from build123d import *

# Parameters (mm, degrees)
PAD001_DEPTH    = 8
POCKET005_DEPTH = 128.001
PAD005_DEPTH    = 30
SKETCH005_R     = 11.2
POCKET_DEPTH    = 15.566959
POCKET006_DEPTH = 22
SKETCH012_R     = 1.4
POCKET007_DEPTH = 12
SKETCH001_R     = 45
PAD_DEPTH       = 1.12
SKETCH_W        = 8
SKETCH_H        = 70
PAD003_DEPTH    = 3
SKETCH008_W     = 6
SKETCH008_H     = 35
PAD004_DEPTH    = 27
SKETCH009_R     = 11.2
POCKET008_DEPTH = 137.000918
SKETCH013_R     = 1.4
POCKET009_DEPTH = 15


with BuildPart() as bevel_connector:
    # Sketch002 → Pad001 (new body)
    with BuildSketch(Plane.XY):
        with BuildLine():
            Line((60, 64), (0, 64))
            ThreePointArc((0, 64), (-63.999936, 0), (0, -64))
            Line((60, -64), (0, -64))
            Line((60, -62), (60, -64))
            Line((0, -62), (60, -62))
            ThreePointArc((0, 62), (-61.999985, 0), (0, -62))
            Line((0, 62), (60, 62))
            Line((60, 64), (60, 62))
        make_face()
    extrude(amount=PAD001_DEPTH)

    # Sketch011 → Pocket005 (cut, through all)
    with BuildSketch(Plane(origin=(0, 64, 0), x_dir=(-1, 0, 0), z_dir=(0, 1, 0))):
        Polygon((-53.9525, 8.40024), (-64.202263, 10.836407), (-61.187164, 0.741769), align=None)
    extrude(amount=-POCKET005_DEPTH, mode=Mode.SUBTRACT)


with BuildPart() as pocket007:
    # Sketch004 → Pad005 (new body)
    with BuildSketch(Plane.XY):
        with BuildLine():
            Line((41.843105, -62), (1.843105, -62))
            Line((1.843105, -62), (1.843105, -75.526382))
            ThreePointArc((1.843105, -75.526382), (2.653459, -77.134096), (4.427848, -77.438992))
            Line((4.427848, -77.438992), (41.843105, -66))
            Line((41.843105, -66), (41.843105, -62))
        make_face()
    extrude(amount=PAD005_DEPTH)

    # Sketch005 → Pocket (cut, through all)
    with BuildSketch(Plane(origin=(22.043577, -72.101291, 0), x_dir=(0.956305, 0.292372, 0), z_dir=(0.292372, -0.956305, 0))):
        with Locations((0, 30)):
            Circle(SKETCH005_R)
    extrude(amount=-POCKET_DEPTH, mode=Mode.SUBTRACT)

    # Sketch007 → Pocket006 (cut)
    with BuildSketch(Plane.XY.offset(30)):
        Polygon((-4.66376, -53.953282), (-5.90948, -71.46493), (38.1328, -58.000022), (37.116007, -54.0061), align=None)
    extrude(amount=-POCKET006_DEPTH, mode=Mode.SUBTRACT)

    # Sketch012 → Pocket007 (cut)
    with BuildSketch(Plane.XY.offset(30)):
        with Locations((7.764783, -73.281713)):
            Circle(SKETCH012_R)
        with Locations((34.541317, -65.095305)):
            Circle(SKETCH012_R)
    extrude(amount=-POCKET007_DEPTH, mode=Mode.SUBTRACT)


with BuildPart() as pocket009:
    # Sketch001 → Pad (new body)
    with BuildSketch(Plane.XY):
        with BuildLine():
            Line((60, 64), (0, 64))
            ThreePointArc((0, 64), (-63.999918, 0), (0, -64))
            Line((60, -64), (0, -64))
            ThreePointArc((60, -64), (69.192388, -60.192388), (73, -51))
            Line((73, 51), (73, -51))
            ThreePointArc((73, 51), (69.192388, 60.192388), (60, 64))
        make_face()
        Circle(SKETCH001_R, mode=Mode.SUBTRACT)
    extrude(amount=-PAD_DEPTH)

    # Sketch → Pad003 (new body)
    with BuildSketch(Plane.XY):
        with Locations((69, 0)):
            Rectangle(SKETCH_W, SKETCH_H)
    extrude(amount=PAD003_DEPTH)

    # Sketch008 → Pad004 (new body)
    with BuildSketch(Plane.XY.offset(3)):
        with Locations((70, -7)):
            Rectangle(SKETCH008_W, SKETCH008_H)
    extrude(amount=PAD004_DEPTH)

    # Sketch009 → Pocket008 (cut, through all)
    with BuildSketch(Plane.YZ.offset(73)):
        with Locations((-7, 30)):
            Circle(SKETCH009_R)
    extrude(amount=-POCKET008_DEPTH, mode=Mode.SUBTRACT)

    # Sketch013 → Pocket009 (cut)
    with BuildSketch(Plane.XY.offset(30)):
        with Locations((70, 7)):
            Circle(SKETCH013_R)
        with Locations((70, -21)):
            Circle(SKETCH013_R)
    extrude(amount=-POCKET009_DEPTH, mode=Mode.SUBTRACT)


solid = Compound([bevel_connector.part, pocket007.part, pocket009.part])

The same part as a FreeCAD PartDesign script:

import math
import FreeCAD as App
import Part
import Sketcher
from FreeCAD import Vector
Q = App.Units.Quantity

doc = App.newDocument("Part")
body = doc.addObject("PartDesign::Body", "Body")

# Sketch on XY plane
sketch1 = body.newObject("Sketcher::SketchObject", "Sketch")
sketch1.AttachmentSupport = (doc.getObject("XY_Plane"), [""])
sketch1.MapMode = "FlatFace"
sketch1.addGeometry([
    Part.LineSegment(Vector(60, 64, 0), Vector(0, 64, 0)),  # 0
    Part.ArcOfCircle(Part.Circle(Vector(0.000064, 0, 0), Vector(0, 0, 1), 64), math.radians(90.000057), math.radians(269.999943)),  # 1
    Part.LineSegment(Vector(0, -64, 0), Vector(60, -64, 0)),  # 2
    Part.LineSegment(Vector(60, -64, 0), Vector(60, -62, 0)),  # 3
    Part.LineSegment(Vector(60, -62, 0), Vector(0, -62, 0)),  # 4
    Part.ArcOfCircle(Part.Circle(Vector(0.000015, 0, 0), Vector(0, 0, 1), 62), math.radians(90.000014), math.radians(269.999986)),  # 5
    Part.LineSegment(Vector(0, 62, 0), Vector(60, 62, 0)),  # 6
    Part.LineSegment(Vector(60, 62, 0), Vector(60, 64, 0)),  # 7
], False)
sketch1.addConstraint([
    Sketcher.Constraint("Coincident", 0, 2, 1, 1),
    Sketcher.Constraint("Coincident", 1, 2, 2, 1),
    Sketcher.Constraint("Coincident", 2, 2, 3, 1),
    Sketcher.Constraint("Coincident", 3, 2, 4, 1),
    Sketcher.Constraint("Coincident", 4, 2, 5, 2),
    Sketcher.Constraint("Coincident", 5, 1, 6, 1),
    Sketcher.Constraint("Coincident", 6, 2, 7, 1),
    Sketcher.Constraint("Coincident", 7, 2, 0, 1),
    Sketcher.Constraint("Horizontal", 0),
    Sketcher.Constraint("Horizontal", 2),
    Sketcher.Constraint("Vertical", 3),
    Sketcher.Constraint("Horizontal", 4),
    Sketcher.Constraint("Horizontal", 6),
    Sketcher.Constraint("Vertical", 7),
    Sketcher.Constraint("PointOnObject", 1, 3, -1),
    Sketcher.Constraint("PointOnObject", 5, 3, -1),
    Sketcher.Constraint("PointOnObject", 0, 2, -2),
    Sketcher.Constraint("PointOnObject", 1, 2, -2),
    Sketcher.Constraint("PointOnObject", 4, 2, -2),
    Sketcher.Constraint("PointOnObject", 5, 1, -2),
    Sketcher.Constraint("Radius", 1, 64.0),
    Sketcher.Constraint("Radius", 5, 62.0),
    Sketcher.Constraint("DistanceX", 0, 2, 0, 1, 60.0),
    Sketcher.Constraint("DistanceX", 2, 1, 2, 2, 60.0),
    Sketcher.Constraint("DistanceX", 1, 3, 2, 2, 59.999936),
    Sketcher.Constraint("DistanceX", 5, 3, 2, 2, 59.999985),
])
pad1 = body.newObject("PartDesign::Pad", "Pad")
pad1.Profile = sketch1
pad1.Length = 8

# Sketch on XZ plane
sketch2 = body.newObject("Sketcher::SketchObject", "Sketch001")
sketch2.AttachmentSupport = (doc.getObject("XZ_Plane"), [""])
sketch2.MapMode = "FlatFace"
sketch2.AttachmentOffset = App.Placement(Vector(0, 0, -64), App.Rotation())
sketch2.addGeometry([
    Part.LineSegment(Vector(54, 8, 0), Vector(64, 11, 0)),
    Part.LineSegment(Vector(64, 11, 0), Vector(61, 1, 0)),
    Part.LineSegment(Vector(61, 1, 0), Vector(54, 8, 0)),
], False)
sketch2.addConstraint([
    Sketcher.Constraint("Coincident", 0, 2, 1, 1),
    Sketcher.Constraint("Coincident", 1, 2, 2, 1),
    Sketcher.Constraint("Coincident", 2, 2, 0, 1),
    Sketcher.Constraint("Equal", 0, 1),
    Sketcher.Constraint("Equal", 1, 2),
    Sketcher.Constraint("Angle", 0, Q("13.369998 deg")),
    Sketcher.Constraint("Distance", 0, 10.5353),
    Sketcher.Constraint("DistanceX", -1, 1, 2, 2, 53.9525),
    Sketcher.Constraint("DistanceY", -1, 1, 1, 2, 0.741769),
])
pocket1 = body.newObject("PartDesign::Pocket", "Pocket")
pocket1.Profile = sketch2
pocket1.Type = "ThroughAll"
pocket1.Reversed = True
body2 = doc.addObject("PartDesign::Body", "Body001")

# Sketch on XY plane
sketch3 = body2.newObject("Sketcher::SketchObject", "Sketch002")
sketch3.AttachmentSupport = (doc.getObject("XY_Plane001"), [""])
sketch3.MapMode = "FlatFace"
sketch3.addGeometry([
    Part.LineSegment(Vector(41.8, -62, 0), Vector(1.8, -62, 0)),  # 0
    Part.LineSegment(Vector(1.8, -62, 0), Vector(1.8, -75.5, 0)),  # 1
    Part.ArcOfCircle(Part.Circle(Vector(3.8, -75.5, 0), Vector(0, 0, 1), 2), math.radians(180), math.radians(287)),  # 2
    Part.LineSegment(Vector(4.4, -77.4, 0), Vector(41.8, -66, 0)),  # 3
    Part.LineSegment(Vector(41.8, -66, 0), Vector(41.8, -62, 0)),  # 4
], False)
sketch3.addConstraint([
    Sketcher.Constraint("Coincident", 0, 2, 1, 1),
    Sketcher.Constraint("Tangent", 1, 2, 2, 1),
    Sketcher.Constraint("Tangent", 2, 2, 3, 1),
    Sketcher.Constraint("Coincident", 3, 2, 4, 1),
    Sketcher.Constraint("Coincident", 4, 2, 0, 1),
    Sketcher.Constraint("Horizontal", 0),
    Sketcher.Constraint("Vertical", 1),
    Sketcher.Constraint("Vertical", 4),
    Sketcher.Constraint("Radius", 2, 2.0),
    Sketcher.Constraint("DistanceX", 0, 2, 0, 1, 40.0),
    Sketcher.Constraint("DistanceY", 4, 1, 4, 2, 4.0),
    Sketcher.Constraint("Angle", 3, Q("17 deg")),
    Sketcher.Constraint("DistanceY", 0, 2, -1, 1, 62.0),
    Sketcher.Constraint("DistanceX", -1, 1, 2, 2, 4.427848),
])
pad2 = body2.newObject("PartDesign::Pad", "Pad001")
pad2.Profile = sketch3
pad2.Length = 30

# Sketch on an angled plane
sketch4 = body2.newObject("Sketcher::SketchObject", "Sketch003")
sketch4.Placement = App.Placement(Vector(22.043577, -72.101291, 0), App.Rotation(Vector(0.956304694, 0.292371907, 0), Vector(0, 0, 1), Vector(0.292371907, -0.956304694, 0), "ZXY"))
sketch4.addGeometry(Part.Circle(Vector(0, 30, 0), Vector(0, 0, 1), 11), False)
sketch4.addConstraint([
    Sketcher.Constraint("PointOnObject", 0, 3, -2),
    Sketcher.Constraint("Diameter", 0, 22.4),
    Sketcher.Constraint("DistanceY", -1, 1, 0, 3, 30.0),
])
pocket2 = body2.newObject("PartDesign::Pocket", "Pocket001")
pocket2.Profile = sketch4
pocket2.Type = "ThroughAll"

# Sketch on XY plane
sketch5 = body2.newObject("Sketcher::SketchObject", "Sketch004")
sketch5.AttachmentSupport = (doc.getObject("XY_Plane001"), [""])
sketch5.MapMode = "FlatFace"
sketch5.AttachmentOffset = App.Placement(Vector(0, 0, 30), App.Rotation())
sketch5.addGeometry([
    Part.LineSegment(Vector(-4.7, -54, 0), Vector(-5.9, -71.5, 0)),
    Part.LineSegment(Vector(-5.9, -71.5, 0), Vector(38.1, -58, 0)),
    Part.LineSegment(Vector(38.1, -58, 0), Vector(37.1, -54, 0)),
    Part.LineSegment(Vector(37.1, -54, 0), Vector(-4.7, -54, 0)),
], False)
sketch5.addConstraint([
    Sketcher.Constraint("Coincident", 0, 2, 1, 1),
    Sketcher.Constraint("Coincident", 1, 2, 2, 1),
    Sketcher.Constraint("Coincident", 2, 2, 3, 1),
    Sketcher.Constraint("Coincident", 3, 2, 0, 1),
    Sketcher.Constraint("Distance", 0, 17.5559),
    Sketcher.Constraint("Distance", 1, 46.0546),
    Sketcher.Constraint("Distance", 3, 41.7798),
    Sketcher.Constraint("DistanceX", -1, 1, 1, 2, 38.1328),
    Sketcher.Constraint("DistanceY", 2, 2, -1, 1, 54.0061),
    Sketcher.Constraint("Distance", 2, 4.12132),
    Sketcher.Constraint("DistanceX", 0, 2, -1, 1, 5.90948),
    Sketcher.Constraint("DistanceY", 0, 2, -1, 1, 71.46493),
])
pocket3 = body2.newObject("PartDesign::Pocket", "Pocket002")
pocket3.Profile = sketch5
pocket3.Length = 22

# Sketch on XY plane
sketch6 = body2.newObject("Sketcher::SketchObject", "Sketch005")
sketch6.AttachmentSupport = (doc.getObject("XY_Plane001"), [""])
sketch6.MapMode = "FlatFace"
sketch6.AttachmentOffset = App.Placement(Vector(0, 0, 30), App.Rotation())
sketch6.addGeometry([
    Part.Circle(Vector(7.8, -73.3, 0), Vector(0, 0, 1), 1.4),
    Part.Circle(Vector(34.5, -65.1, 0), Vector(0, 0, 1), 1.4),
], False)
sketch6.addConstraint([
    Sketcher.Constraint("Equal", 0, 1),
    Sketcher.Constraint("Diameter", 0, 2.8),
    Sketcher.Constraint("DistanceX", -1, 1, 0, 3, 7.764783),
    Sketcher.Constraint("DistanceY", 0, 3, -1, 1, 73.281713),
    Sketcher.Constraint("DistanceX", -1, 1, 1, 3, 34.541317),
    Sketcher.Constraint("DistanceY", 1, 3, -1, 1, 65.095305),
])
pocket4 = body2.newObject("PartDesign::Pocket", "Pocket003")
pocket4.Profile = sketch6
pocket4.Length = 12
body3 = doc.addObject("PartDesign::Body", "Body002")

# Sketch on XY plane
sketch7 = body3.newObject("Sketcher::SketchObject", "Sketch006")
sketch7.AttachmentSupport = (doc.getObject("XY_Plane002"), [""])
sketch7.MapMode = "FlatFace"
sketch7.addGeometry([
    Part.LineSegment(Vector(60, 64, 0), Vector(0, 64, 0)),  # 0
    Part.ArcOfCircle(Part.Circle(Vector(0.000082, 0, 0), Vector(0, 0, 1), 64), math.radians(90.000073), math.radians(269.999927)),  # 1
    Part.LineSegment(Vector(0, -64, 0), Vector(60, -64, 0)),  # 2
    Part.ArcOfCircle(Part.Circle(Vector(59.999999, -50.999999, 0), Vector(0, 0, 1), 13.000001), math.radians(-89.999998), math.radians(-0.000002)),  # 3
    Part.LineSegment(Vector(73, -51, 0), Vector(73, 51, 0)),  # 4
    Part.ArcOfCircle(Part.Circle(Vector(59.999999, 50.999999, 0), Vector(0, 0, 1), 13.000001), math.radians(0.000002), math.radians(89.999998)),  # 5
    Part.Circle(Vector(0, 0, 0), Vector(0, 0, 1), 45),  # 6
], False)
sketch7.addConstraint([
    Sketcher.Constraint("Coincident", 0, 2, 1, 1),
    Sketcher.Constraint("Coincident", 1, 2, 2, 1),
    Sketcher.Constraint("Coincident", 2, 2, 3, 1),
    Sketcher.Constraint("Coincident", 3, 2, 4, 1),
    Sketcher.Constraint("Coincident", 4, 2, 5, 1),
    Sketcher.Constraint("Coincident", 5, 2, 0, 1),
    Sketcher.Constraint("Horizontal", 0),
    Sketcher.Constraint("Horizontal", 2),
    Sketcher.Constraint("Vertical", 4),
    Sketcher.Constraint("Coincident", 6, 3, -1, 1),
    Sketcher.Constraint("PointOnObject", 1, 3, -1),
    Sketcher.Constraint("PointOnObject", 0, 2, -2),
    Sketcher.Constraint("PointOnObject", 1, 2, -2),
    Sketcher.Constraint("Diameter", 6, 90.0),
    Sketcher.Constraint("Radius", 1, 64.0),
    Sketcher.Constraint("Radius", 3, 13.000001),
    Sketcher.Constraint("Radius", 5, 13.000001),
    Sketcher.Constraint("DistanceX", 0, 2, 0, 1, 60.0),
    Sketcher.Constraint("DistanceX", 2, 1, 2, 2, 60.0),
    Sketcher.Constraint("DistanceY", 4, 1, 4, 2, 102.0),
    Sketcher.Constraint("DistanceX", -1, 1, 3, 3, 59.999999),
    Sketcher.Constraint("DistanceY", 3, 2, -1, 1, 51.0),
    Sketcher.Constraint("DistanceX", 1, 3, 3, 3, 59.999917),
])
pad3 = body3.newObject("PartDesign::Pad", "Pad002")
pad3.Profile = sketch7
pad3.Length = 1.12
pad3.Reversed = True

# Sketch on XY plane
sketch8 = body3.newObject("Sketcher::SketchObject", "Sketch007")
sketch8.AttachmentSupport = (doc.getObject("XY_Plane002"), [""])
sketch8.MapMode = "FlatFace"
sketch8.addGeometry([
    Part.LineSegment(Vector(65, 35, 0), Vector(65, -35, 0)),
    Part.LineSegment(Vector(65, -35, 0), Vector(73, -35, 0)),
    Part.LineSegment(Vector(73, -35, 0), Vector(73, 35, 0)),
    Part.LineSegment(Vector(73, 35, 0), Vector(65, 35, 0)),
], False)
sketch8.addConstraint([
    Sketcher.Constraint("Coincident", 0, 2, 1, 1),
    Sketcher.Constraint("Coincident", 1, 2, 2, 1),
    Sketcher.Constraint("Coincident", 2, 2, 3, 1),
    Sketcher.Constraint("Coincident", 3, 2, 0, 1),
    Sketcher.Constraint("Vertical", 0),
    Sketcher.Constraint("Horizontal", 1),
    Sketcher.Constraint("Vertical", 2),
    Sketcher.Constraint("Horizontal", 3),
    Sketcher.Constraint("DistanceX", 1, 1, 1, 2, 8.0),
    Sketcher.Constraint("DistanceY", 0, 2, 0, 1, 70.0),
    Sketcher.Constraint("DistanceX", -1, 1, 0, 2, 65.0),
    Sketcher.Constraint("DistanceY", 0, 2, -1, 1, 35.0),
])
pad4 = body3.newObject("PartDesign::Pad", "Pad003")
pad4.Profile = sketch8
pad4.Length = 3

# Sketch on XY plane
sketch9 = body3.newObject("Sketcher::SketchObject", "Sketch008")
sketch9.AttachmentSupport = (doc.getObject("XY_Plane002"), [""])
sketch9.MapMode = "FlatFace"
sketch9.AttachmentOffset = App.Placement(Vector(0, 0, 3), App.Rotation())
sketch9.addGeometry([
    Part.LineSegment(Vector(67, 10, 0), Vector(67, -24, 0)),
    Part.LineSegment(Vector(67, -24, 0), Vector(73, -24, 0)),
    Part.LineSegment(Vector(73, -24, 0), Vector(73, 10, 0)),
    Part.LineSegment(Vector(73, 10, 0), Vector(67, 10, 0)),
], False)
sketch9.addConstraint([
    Sketcher.Constraint("Coincident", 0, 2, 1, 1),
    Sketcher.Constraint("Coincident", 1, 2, 2, 1),
    Sketcher.Constraint("Coincident", 2, 2, 3, 1),
    Sketcher.Constraint("Coincident", 3, 2, 0, 1),
    Sketcher.Constraint("Vertical", 0),
    Sketcher.Constraint("Horizontal", 1),
    Sketcher.Constraint("Vertical", 2),
    Sketcher.Constraint("Horizontal", 3),
    Sketcher.Constraint("DistanceX", 1, 1, 1, 2, 6.0),
    Sketcher.Constraint("DistanceY", 0, 2, 0, 1, 35.0),
    Sketcher.Constraint("DistanceX", -1, 1, 0, 2, 67.0),
    Sketcher.Constraint("DistanceY", 0, 2, -1, 1, 24.5),
])
pad5 = body3.newObject("PartDesign::Pad", "Pad004")
pad5.Profile = sketch9
pad5.Length = 27

# Sketch on YZ plane
sketch10 = body3.newObject("Sketcher::SketchObject", "Sketch009")
sketch10.AttachmentSupport = (doc.getObject("YZ_Plane002"), [""])
sketch10.MapMode = "FlatFace"
sketch10.AttachmentOffset = App.Placement(Vector(0, 0, 73), App.Rotation())
sketch10.addGeometry(Part.Circle(Vector(-7, 30, 0), Vector(0, 0, 1), 11), False)
sketch10.addConstraint([
    Sketcher.Constraint("Diameter", 0, 22.4),
    Sketcher.Constraint("DistanceX", 0, 3, -1, 1, 7.0),
    Sketcher.Constraint("DistanceY", -1, 1, 0, 3, 30.0),
])
pocket5 = body3.newObject("PartDesign::Pocket", "Pocket004")
pocket5.Profile = sketch10
pocket5.Type = "ThroughAll"

# Sketch on XY plane
sketch11 = body3.newObject("Sketcher::SketchObject", "Sketch010")
sketch11.AttachmentSupport = (doc.getObject("XY_Plane002"), [""])
sketch11.MapMode = "FlatFace"
sketch11.AttachmentOffset = App.Placement(Vector(0, 0, 30), App.Rotation())
sketch11.addGeometry([
    Part.Circle(Vector(70, 7, 0), Vector(0, 0, 1), 1.4),
    Part.Circle(Vector(70, -21, 0), Vector(0, 0, 1), 1.4),
], False)
sketch11.addConstraint([
    Sketcher.Constraint("Equal", 0, 1),
    Sketcher.Constraint("Vertical", 0, 3, 1, 3),
    Sketcher.Constraint("Diameter", 0, 2.8),
    Sketcher.Constraint("DistanceX", -1, 1, 0, 3, 70.0),
    Sketcher.Constraint("DistanceY", -1, 1, 0, 3, 7.0),
    Sketcher.Constraint("DistanceY", 1, 3, -1, 1, 21.0),
])
pocket6 = body3.newObject("PartDesign::Pocket", "Pocket005")
pocket6.Profile = sketch11
pocket6.Length = 15

doc.recompute()
